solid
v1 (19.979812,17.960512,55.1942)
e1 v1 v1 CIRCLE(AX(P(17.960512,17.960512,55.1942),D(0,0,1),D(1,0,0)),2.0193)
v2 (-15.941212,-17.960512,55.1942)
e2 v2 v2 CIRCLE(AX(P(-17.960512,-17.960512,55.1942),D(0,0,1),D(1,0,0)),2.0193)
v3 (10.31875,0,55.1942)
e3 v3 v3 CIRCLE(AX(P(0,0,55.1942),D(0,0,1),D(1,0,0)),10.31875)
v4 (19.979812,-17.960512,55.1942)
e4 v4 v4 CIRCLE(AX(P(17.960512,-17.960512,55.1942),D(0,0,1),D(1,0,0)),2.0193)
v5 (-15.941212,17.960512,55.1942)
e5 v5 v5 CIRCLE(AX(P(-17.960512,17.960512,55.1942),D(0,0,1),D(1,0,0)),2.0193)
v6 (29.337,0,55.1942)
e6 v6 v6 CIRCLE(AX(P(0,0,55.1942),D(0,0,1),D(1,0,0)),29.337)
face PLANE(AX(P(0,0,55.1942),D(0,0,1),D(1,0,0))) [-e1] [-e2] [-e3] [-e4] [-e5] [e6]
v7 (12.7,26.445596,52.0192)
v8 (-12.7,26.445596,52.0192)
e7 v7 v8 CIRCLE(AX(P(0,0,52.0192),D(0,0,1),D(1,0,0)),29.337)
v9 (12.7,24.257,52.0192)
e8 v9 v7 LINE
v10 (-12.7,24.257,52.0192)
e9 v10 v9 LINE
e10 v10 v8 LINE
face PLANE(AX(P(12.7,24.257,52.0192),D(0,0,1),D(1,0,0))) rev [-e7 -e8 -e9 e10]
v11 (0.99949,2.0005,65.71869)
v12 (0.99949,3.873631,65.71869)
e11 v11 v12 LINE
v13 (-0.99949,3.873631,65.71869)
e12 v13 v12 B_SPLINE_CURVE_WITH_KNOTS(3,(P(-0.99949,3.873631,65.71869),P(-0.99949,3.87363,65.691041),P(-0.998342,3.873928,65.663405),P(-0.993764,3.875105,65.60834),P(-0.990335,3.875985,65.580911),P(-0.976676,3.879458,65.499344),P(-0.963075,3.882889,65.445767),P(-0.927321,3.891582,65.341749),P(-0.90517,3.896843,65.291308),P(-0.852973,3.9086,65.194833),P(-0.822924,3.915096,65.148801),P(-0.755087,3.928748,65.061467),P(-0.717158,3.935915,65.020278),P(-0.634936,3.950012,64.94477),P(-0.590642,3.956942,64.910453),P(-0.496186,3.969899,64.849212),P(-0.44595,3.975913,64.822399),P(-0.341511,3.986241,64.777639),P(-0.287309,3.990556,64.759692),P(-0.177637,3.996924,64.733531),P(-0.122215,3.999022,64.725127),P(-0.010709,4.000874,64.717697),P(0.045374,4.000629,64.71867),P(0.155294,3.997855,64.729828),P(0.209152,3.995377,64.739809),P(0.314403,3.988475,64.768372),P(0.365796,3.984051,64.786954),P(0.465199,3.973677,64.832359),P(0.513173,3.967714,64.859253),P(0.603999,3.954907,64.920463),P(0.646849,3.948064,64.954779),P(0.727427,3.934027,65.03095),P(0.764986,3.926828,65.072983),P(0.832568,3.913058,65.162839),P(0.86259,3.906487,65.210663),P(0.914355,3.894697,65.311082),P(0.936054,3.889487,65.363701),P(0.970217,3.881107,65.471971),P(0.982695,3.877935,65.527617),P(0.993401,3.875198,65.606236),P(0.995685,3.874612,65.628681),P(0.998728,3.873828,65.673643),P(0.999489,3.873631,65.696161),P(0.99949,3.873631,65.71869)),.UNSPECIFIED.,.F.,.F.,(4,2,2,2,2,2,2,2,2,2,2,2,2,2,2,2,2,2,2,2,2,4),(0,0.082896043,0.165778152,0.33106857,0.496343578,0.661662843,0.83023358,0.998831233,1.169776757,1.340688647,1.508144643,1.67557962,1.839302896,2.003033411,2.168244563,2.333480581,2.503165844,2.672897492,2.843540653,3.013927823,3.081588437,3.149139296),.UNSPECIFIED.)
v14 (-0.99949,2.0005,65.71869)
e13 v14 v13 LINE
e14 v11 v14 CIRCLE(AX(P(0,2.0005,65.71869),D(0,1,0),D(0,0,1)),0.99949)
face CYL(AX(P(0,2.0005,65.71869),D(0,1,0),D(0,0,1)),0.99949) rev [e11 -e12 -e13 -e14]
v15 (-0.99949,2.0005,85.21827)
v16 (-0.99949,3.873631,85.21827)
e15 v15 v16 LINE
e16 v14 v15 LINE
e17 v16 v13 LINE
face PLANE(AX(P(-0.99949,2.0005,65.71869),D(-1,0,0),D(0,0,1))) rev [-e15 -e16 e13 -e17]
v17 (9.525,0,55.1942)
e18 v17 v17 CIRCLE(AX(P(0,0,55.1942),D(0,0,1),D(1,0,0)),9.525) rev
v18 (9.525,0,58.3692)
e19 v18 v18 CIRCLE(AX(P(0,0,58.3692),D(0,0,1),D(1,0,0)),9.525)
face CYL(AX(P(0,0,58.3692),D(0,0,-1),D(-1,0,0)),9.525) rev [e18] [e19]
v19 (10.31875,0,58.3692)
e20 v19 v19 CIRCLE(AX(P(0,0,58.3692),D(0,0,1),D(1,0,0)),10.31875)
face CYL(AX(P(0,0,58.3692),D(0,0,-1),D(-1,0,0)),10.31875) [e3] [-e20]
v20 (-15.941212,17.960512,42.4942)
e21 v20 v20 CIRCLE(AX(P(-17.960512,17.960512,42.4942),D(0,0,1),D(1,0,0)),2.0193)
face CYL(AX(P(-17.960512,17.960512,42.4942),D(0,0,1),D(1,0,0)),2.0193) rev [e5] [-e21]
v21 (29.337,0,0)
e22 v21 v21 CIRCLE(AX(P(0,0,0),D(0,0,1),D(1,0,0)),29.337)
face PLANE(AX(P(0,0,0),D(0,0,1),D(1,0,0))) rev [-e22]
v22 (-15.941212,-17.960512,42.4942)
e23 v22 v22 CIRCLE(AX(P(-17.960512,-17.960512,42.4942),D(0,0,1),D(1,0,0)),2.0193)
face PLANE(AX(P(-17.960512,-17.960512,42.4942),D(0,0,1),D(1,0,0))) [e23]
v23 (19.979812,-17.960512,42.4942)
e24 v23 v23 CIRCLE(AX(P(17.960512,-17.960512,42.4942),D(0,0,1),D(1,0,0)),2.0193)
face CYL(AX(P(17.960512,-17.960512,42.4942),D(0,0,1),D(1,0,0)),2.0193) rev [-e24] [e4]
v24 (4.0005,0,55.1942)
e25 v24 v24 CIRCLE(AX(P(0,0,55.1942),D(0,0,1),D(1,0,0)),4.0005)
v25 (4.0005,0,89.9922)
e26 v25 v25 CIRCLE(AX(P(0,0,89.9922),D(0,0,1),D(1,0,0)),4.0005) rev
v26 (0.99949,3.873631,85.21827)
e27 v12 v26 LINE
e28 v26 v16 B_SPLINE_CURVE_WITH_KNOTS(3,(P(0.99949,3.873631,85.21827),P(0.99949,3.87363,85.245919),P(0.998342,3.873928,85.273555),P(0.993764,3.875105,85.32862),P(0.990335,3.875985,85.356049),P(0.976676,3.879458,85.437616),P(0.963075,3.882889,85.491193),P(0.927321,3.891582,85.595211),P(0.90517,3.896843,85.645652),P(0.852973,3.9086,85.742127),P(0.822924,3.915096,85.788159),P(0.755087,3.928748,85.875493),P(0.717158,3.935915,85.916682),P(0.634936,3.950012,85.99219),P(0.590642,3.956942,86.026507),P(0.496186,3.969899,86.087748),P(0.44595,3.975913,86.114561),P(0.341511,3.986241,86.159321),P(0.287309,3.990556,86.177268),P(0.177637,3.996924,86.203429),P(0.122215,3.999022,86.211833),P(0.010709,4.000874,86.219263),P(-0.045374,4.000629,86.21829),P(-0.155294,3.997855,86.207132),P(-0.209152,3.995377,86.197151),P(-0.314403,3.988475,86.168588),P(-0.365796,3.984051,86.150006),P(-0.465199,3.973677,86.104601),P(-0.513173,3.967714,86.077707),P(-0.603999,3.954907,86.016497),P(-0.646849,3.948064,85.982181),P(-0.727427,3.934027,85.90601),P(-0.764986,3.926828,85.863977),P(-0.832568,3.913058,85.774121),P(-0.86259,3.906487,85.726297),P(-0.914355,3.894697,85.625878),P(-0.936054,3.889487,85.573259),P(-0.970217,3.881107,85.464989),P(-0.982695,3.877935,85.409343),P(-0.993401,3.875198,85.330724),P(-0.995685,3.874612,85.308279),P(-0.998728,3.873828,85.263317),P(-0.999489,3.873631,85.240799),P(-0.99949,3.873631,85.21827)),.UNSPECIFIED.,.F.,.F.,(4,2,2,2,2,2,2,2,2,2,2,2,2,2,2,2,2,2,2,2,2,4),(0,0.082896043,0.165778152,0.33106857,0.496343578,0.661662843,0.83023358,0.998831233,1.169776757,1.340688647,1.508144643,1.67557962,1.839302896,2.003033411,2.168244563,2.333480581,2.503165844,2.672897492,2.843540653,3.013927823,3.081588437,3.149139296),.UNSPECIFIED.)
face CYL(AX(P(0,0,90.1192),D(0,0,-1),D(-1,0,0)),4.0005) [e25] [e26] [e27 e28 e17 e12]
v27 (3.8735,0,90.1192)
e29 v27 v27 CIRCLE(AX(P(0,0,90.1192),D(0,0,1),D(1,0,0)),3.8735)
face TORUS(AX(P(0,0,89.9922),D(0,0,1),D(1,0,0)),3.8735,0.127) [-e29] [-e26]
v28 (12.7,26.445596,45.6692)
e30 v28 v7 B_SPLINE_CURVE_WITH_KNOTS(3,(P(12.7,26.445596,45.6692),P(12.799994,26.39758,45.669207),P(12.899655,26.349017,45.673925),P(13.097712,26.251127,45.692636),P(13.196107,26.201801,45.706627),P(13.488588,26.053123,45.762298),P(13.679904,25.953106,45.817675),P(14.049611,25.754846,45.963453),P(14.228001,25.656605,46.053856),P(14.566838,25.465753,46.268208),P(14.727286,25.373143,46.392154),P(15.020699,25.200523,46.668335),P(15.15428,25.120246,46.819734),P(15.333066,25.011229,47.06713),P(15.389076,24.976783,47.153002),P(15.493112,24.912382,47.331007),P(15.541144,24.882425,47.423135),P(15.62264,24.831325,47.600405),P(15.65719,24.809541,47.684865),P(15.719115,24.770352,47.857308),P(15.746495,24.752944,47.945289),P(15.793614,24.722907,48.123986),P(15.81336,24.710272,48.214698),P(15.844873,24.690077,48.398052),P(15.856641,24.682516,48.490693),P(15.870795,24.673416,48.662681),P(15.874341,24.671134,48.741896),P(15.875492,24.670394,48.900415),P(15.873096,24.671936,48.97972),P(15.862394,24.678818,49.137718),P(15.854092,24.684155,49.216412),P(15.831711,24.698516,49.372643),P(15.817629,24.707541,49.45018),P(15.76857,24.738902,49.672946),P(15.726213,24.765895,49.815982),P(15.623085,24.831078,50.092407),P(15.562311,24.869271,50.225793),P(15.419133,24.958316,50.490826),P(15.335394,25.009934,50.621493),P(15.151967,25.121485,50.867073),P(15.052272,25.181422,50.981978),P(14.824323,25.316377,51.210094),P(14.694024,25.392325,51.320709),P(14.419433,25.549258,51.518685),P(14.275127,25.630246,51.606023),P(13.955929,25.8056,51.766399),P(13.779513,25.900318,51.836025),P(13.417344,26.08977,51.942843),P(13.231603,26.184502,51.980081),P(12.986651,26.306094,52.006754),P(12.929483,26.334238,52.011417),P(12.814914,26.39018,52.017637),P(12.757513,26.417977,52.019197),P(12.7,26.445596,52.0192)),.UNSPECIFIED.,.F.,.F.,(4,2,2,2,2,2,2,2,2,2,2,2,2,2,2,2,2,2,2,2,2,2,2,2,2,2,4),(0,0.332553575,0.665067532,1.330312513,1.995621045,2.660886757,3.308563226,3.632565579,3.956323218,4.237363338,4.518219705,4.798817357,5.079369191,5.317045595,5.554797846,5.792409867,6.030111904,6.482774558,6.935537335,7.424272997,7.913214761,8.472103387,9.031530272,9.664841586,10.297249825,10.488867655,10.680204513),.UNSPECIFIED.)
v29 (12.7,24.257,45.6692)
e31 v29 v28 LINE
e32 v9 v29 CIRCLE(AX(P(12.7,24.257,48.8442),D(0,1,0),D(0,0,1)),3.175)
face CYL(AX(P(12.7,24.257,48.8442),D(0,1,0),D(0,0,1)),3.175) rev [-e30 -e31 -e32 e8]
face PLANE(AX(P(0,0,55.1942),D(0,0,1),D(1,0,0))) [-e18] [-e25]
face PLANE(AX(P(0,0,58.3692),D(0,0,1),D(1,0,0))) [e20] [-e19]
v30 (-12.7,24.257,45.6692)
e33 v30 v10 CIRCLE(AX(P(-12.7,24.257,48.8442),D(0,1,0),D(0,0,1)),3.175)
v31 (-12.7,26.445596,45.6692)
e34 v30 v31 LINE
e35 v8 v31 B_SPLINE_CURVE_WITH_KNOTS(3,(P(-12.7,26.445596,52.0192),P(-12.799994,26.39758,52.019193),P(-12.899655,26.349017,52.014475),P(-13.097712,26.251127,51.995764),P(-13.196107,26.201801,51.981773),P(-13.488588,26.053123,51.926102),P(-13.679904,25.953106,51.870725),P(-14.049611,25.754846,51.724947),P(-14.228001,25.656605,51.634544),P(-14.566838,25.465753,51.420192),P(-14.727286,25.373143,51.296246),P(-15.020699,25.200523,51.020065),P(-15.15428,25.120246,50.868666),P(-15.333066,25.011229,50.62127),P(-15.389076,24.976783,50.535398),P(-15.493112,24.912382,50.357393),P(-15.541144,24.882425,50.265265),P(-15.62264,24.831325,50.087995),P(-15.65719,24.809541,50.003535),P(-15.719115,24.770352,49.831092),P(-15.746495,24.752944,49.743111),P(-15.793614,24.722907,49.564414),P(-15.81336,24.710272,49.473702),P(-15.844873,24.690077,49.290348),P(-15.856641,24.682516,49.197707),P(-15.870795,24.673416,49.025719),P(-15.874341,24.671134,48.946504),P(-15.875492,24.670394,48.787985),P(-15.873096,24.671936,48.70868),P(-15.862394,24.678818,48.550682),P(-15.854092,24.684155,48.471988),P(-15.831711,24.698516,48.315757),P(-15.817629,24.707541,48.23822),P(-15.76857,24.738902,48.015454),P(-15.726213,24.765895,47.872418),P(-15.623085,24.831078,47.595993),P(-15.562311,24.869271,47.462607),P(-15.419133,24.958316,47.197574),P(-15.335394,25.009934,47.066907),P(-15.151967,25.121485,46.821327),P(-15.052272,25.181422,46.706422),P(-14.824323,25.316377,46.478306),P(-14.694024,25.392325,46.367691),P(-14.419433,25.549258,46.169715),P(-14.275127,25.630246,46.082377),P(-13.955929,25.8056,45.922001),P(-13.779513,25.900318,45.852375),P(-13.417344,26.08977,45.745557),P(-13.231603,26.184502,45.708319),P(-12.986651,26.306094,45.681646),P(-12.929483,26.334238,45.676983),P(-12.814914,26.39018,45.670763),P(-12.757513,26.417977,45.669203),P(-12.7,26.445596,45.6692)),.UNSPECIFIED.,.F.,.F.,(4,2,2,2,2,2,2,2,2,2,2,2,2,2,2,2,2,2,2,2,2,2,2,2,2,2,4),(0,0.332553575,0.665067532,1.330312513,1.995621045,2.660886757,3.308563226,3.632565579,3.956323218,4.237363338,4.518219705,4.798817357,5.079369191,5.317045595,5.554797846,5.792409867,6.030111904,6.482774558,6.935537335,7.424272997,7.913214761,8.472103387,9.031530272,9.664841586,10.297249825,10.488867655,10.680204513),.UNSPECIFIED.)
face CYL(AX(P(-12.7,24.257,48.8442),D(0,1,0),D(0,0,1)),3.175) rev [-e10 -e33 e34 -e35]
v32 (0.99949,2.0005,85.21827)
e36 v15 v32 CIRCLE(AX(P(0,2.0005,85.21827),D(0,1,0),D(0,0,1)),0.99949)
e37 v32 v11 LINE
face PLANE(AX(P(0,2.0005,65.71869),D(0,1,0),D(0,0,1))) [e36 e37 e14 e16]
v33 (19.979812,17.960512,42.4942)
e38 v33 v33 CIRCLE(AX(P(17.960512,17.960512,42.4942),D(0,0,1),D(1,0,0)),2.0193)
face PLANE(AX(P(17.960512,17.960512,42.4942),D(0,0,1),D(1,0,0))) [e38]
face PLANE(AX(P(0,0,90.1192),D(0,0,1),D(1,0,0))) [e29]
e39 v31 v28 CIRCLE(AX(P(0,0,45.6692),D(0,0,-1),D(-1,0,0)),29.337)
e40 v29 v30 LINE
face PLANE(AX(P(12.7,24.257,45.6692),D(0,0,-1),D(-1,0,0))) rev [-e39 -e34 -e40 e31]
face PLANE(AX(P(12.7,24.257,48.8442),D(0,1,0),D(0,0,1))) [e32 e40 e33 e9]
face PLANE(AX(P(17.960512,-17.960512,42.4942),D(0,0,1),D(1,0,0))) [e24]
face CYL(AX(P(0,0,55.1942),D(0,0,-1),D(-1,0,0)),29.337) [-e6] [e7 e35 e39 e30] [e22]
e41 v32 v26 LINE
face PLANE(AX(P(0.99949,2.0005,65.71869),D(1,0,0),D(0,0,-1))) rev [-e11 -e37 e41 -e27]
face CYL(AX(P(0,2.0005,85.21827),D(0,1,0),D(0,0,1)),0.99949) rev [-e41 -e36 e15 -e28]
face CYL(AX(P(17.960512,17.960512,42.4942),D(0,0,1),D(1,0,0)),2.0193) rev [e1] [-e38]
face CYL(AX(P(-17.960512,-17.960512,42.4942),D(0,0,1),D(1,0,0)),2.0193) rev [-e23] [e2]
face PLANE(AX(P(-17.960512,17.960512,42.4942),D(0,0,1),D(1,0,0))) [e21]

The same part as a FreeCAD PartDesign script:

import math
import FreeCAD as App
import Part
import Sketcher
from FreeCAD import Vector
Q = App.Units.Quantity


def edges_at(feature, points):
    """Names of the edges that pass closest to the given points."""
    edges = feature.Shape.Edges
    near = lambda p: min(range(len(edges)), key=lambda i: edges[i].distToShape(Part.Vertex(*p))[0])
    return sorted({f"Edge{near(p) + 1}" for p in points})

doc = App.newDocument("Part")
body = doc.addObject("PartDesign::Body", "Body")

# Sketch on XY plane
sketch1 = body.newObject("Sketcher::SketchObject", "Sketch")
sketch1.AttachmentSupport = (doc.getObject("XY_Plane"), [""])
sketch1.MapMode = "FlatFace"
sketch1.addGeometry(Part.Circle(Vector(0, 0, 0), Vector(0, 0, 1), 29), False)
sketch1.addConstraint(Sketcher.Constraint("Coincident", 0, 3, -1, 1))
sketch1.addConstraint(Sketcher.Constraint("Diameter", 0, Q("2.31 in")))
pad1 = body.newObject("PartDesign::Pad", "Pad")
pad1.Profile = sketch1
pad1.Length = Q("2.173 in")

# Sketch on XY plane
sketch2 = body.newObject("Sketcher::SketchObject", "Sketch001")
sketch2.AttachmentSupport = (doc.getObject("XY_Plane"), [""])
sketch2.MapMode = "FlatFace"
sketch2.AttachmentOffset = App.Placement(Vector(0, 0, 2.173 * 25.4), App.Rotation())
sketch2.addGeometry(Part.Circle(Vector(0, 0, 0), Vector(0, 0, 1), 10), False)
sketch2.addGeometry(Part.Circle(Vector(0, 0, 0), Vector(0, 0, 1), 10), False)
sketch2.addConstraint(Sketcher.Constraint("Coincident", 0, 3, -1, 1))
sketch2.addConstraint(Sketcher.Constraint("Coincident", 1, 3, -1, 1))
sketch2.addConstraint(Sketcher.Constraint("Diameter", 1, Q("0.75 in")))
sketch2.addConstraint(Sketcher.Constraint("Diameter", 0, Q("0.8125 in")))
pad2 = body.newObject("PartDesign::Pad", "Pad001")
pad2.Profile = sketch2
pad2.Length = Q("0.125 in")

# Sketch on XY plane
sketch3 = body.newObject("Sketcher::SketchObject", "Sketch002")
sketch3.AttachmentSupport = (doc.getObject("XY_Plane"), [""])
sketch3.MapMode = "FlatFace"
sketch3.AttachmentOffset = App.Placement(Vector(0, 0, 2.173 * 25.4), App.Rotation())
sketch3.addGeometry(Part.Circle(Vector(0, 0, 0), Vector(0, 0, 1), 4), False)
sketch3.addConstraint(Sketcher.Constraint("Coincident", 0, 3, -1, 1))
sketch3.addConstraint(Sketcher.Constraint("Diameter", 0, Q("0.315 in")))
pad3 = body.newObject("PartDesign::Pad", "Pad002")
pad3.Profile = sketch3
pad3.Length = Q("1.375 in")

# Sketch on XY plane
sketch4 = body.newObject("Sketcher::SketchObject", "Sketch003")
sketch4.AttachmentSupport = (doc.getObject("XY_Plane"), [""])
sketch4.MapMode = "FlatFace"
sketch4.AttachmentOffset = App.Placement(Vector(0, 0, 2.173 * 25.4), App.Rotation())
sketch4.addGeometry(Part.Circle(Vector(18, -18, 0), Vector(0, 0, 1), 2), False)
sketch4.addGeometry(Part.Circle(Vector(-18, -18, 0), Vector(0, 0, 1), 2), False)
sketch4.addGeometry(Part.Circle(Vector(-18, 18, 0), Vector(0, 0, 1), 2), False)
sketch4.addGeometry(Part.Circle(Vector(18, 18, 0), Vector(0, 0, 1), 2), False)
sketch4.addConstraint(Sketcher.Constraint("Equal", 0, 1))
sketch4.addConstraint(Sketcher.Constraint("Equal", 1, 2))
sketch4.addConstraint(Sketcher.Constraint("Equal", 2, 3))
sketch4.addConstraint(Sketcher.Constraint("Symmetric", 0, 3, 2, 3, -1, 1))
sketch4.addConstraint(Sketcher.Constraint("Symmetric", 1, 3, 3, 3, -1, 1))
sketch4.addConstraint(Sketcher.Constraint("Symmetric", 0, 3, 1, 3, -2))
sketch4.addConstraint(Sketcher.Constraint("Diameter", 0, Q("0.159 in")))
sketch4.addConstraint(Sketcher.Constraint("DistanceX", -1, 1, 0, 3, 17.960512))
sketch4.addConstraint(Sketcher.Constraint("DistanceY", 0, 3, -1, 1, 17.960512))
pocket1 = body.newObject("PartDesign::Pocket", "Pocket")
pocket1.Profile = sketch4
pocket1.Length = Q("0.5 in")

# Sketch on XZ plane
sketch5 = body.newObject("Sketcher::SketchObject", "Sketch004")
sketch5.AttachmentSupport = (doc.getObject("XZ_Plane"), [""])
sketch5.MapMode = "FlatFace"
sketch5.AttachmentOffset = App.Placement(Vector(0, 0, -1.155 * 25.4), App.Rotation())
sketch5.addGeometry(Part.LineSegment(Vector(-12.7, 52, 0), Vector(12.7, 52, 0)), False)
sketch5.addGeometry(Part.ArcOfCircle(Part.Circle(Vector(12.7, 48.8, 0), Vector(0, 0, 1), 3.2), math.radians(-90), math.radians(90)), False)
sketch5.addGeometry(Part.LineSegment(Vector(12.7, 45.7, 0), Vector(-12.7, 45.7, 0)), False)
sketch5.addGeometry(Part.ArcOfCircle(Part.Circle(Vector(-12.7, 48.8, 0), Vector(0, 0, 1), 3.2), math.radians(90), math.radians(270)), False)
sketch5.addConstraint(Sketcher.Constraint("Tangent", 0, 2, 1, 2))
sketch5.addConstraint(Sketcher.Constraint("Tangent", 1, 1, 2, 1))
sketch5.addConstraint(Sketcher.Constraint("Tangent", 2, 2, 3, 2))
sketch5.addConstraint(Sketcher.Constraint("Tangent", 3, 1, 0, 1))
sketch5.addConstraint(Sketcher.Constraint("Horizontal", 0))
sketch5.addConstraint(Sketcher.Constraint("Horizontal", 2))
sketch5.addConstraint(Sketcher.Constraint("DistanceX", 0, 1, 0, 2, Q("1 in")))
sketch5.addConstraint(Sketcher.Constraint("Radius", 1, Q("0.125 in")))
sketch5.addConstraint(Sketcher.Constraint("DistanceX", -1, 1, 1, 3, Q("0.5 in")))
sketch5.addConstraint(Sketcher.Constraint("DistanceY", -1, 1, 1, 3, Q("1.923 in")))
pocket2 = body.newObject("PartDesign::Pocket", "Pocket001")
pocket2.Profile = sketch5
pocket2.Length = Q("0.2 in")
pocket2.Reversed = True

# Sketch on XZ plane
sketch6 = body.newObject("Sketcher::SketchObject", "Sketch005")
sketch6.AttachmentSupport = (doc.getObject("XZ_Plane"), [""])
sketch6.MapMode = "FlatFace"
sketch6.AttachmentOffset = App.Placement(Vector(0, 0, -0.1575 * 25.4), App.Rotation())
sketch6.addGeometry(Part.LineSegment(Vector(1, 85.2, 0), Vector(1, 65.7, 0)), False)
sketch6.addGeometry(Part.ArcOfCircle(Part.Circle(Vector(0, 65.7, 0), Vector(0, 0, 1), 1), math.radians(180), math.radians(360)), False)
sketch6.addGeometry(Part.LineSegment(Vector(-1, 65.7, 0), Vector(-1, 85.2, 0)), False)
sketch6.addGeometry(Part.ArcOfCircle(Part.Circle(Vector(0, 85.2, 0), Vector(0, 0, 1), 1), math.radians(0), math.radians(180)), False)
sketch6.addConstraint(Sketcher.Constraint("Tangent", 0, 2, 1, 2))
sketch6.addConstraint(Sketcher.Constraint("Tangent", 1, 1, 2, 1))
sketch6.addConstraint(Sketcher.Constraint("Tangent", 2, 2, 3, 2))
sketch6.addConstraint(Sketcher.Constraint("Tangent", 3, 1, 0, 1))
sketch6.addConstraint(Sketcher.Constraint("Vertical", 0))
sketch6.addConstraint(Sketcher.Constraint("Vertical", 2))
sketch6.addConstraint(Sketcher.Constraint("PointOnObject", 1, 3, -2))
sketch6.addConstraint(Sketcher.Constraint("DistanceY", 0, 2, 0, 1, Q("0.7677 in")))
sketch6.addConstraint(Sketcher.Constraint("Radius", 1, 0.99949))
sketch6.addConstraint(Sketcher.Constraint("DistanceY", -1, 1, 1, 3, 65.71869))
pocket3 = body.newObject("PartDesign::Pocket", "Pocket002")
pocket3.Profile = sketch6
pocket3.Length = 2
pocket3.Reversed = True
doc.recompute()

fillet = body.newObject("PartDesign::Fillet", "Fillet")
fillet.Base = (pocket3, edges_at(pocket3, [(-4, 0, 90.119)]))
fillet.Radius = Q("0.005 in")

doc.recompute()
